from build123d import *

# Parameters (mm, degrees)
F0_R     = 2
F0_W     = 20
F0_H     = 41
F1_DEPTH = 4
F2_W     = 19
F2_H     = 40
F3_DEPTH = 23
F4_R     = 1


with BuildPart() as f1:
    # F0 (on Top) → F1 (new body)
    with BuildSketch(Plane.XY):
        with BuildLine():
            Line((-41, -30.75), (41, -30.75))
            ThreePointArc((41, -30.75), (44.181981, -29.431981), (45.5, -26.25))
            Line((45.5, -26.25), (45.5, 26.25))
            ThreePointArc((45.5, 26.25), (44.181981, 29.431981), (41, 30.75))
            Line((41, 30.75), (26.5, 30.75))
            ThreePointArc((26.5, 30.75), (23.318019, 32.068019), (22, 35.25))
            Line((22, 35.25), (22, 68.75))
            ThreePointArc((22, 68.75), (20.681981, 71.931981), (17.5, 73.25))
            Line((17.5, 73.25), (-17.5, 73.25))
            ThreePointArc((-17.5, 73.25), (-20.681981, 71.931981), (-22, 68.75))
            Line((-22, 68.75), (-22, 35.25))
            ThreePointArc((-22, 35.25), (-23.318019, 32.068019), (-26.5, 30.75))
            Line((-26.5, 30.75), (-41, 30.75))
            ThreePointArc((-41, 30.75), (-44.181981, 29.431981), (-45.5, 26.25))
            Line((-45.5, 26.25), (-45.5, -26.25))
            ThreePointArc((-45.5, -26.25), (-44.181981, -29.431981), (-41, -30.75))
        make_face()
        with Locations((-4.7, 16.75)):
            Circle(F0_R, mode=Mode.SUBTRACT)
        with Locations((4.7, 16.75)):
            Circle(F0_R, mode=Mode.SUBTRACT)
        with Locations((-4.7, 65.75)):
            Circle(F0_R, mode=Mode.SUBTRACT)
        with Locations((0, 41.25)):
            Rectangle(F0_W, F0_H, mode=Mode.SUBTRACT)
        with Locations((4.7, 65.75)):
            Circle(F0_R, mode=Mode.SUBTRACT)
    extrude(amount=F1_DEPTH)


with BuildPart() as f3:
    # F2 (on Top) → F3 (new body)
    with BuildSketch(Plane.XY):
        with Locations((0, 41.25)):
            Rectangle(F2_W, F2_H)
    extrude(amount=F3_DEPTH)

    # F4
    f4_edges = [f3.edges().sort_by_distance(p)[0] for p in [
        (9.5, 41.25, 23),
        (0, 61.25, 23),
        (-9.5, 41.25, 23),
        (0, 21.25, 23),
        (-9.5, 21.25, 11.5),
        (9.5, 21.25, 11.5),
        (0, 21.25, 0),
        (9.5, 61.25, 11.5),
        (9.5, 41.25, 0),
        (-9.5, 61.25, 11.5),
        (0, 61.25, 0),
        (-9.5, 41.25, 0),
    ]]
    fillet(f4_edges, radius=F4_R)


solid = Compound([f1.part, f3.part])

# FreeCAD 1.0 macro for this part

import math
import FreeCAD as App
import Part
import Sketcher
Q = App.Units.Quantity


def add_polygon(sketch, points):
    """Adds a closed chain of lines whose ends are joined by coincident constraints."""
    first, n = sketch.GeometryCount, len(points)
    for a, b in zip(points, points[1:] + points[:1]):
        sketch.addGeometry(Part.LineSegment(App.Vector(*a, 0), App.Vector(*b, 0)), False)
    for i in range(n):
        sketch.addConstraint(Sketcher.Constraint("Coincident", first + i, 2, first + (i + 1) % n, 1))

doc = App.newDocument("Part")
body = doc.addObject("PartDesign::Body", "Body")

sketch1 = doc.addObject("Sketcher::SketchObject", "Sketch")
body.addObject(sketch1)
sketch1.AttachmentSupport = (doc.XY_Plane, [""])
sketch1.MapMode = "FlatFace"
sketch1.addGeometry(Part.LineSegment(App.Vector(-41, -30.8, 0), App.Vector(41, -30.8, 0)), False)
sketch1.addGeometry(Part.ArcOfCircle(Part.Circle(App.Vector(41, -26.3, 0), App.Vector(0, 0, 1), 4.5), math.radians(-90), math.radians(0)), False)
sketch1.addGeometry(Part.LineSegment(App.Vector(45.5, -26.2, 0), App.Vector(45.5, 26.2, 0)), False)
sketch1.addGeometry(Part.ArcOfCircle(Part.Circle(App.Vector(41, 26.3, 0), App.Vector(0, 0, 1), 4.5), math.radians(0), math.radians(90)), False)
sketch1.addGeometry(Part.LineSegment(App.Vector(41, 30.8, 0), App.Vector(26.5, 30.8, 0)), False)
sketch1.addGeometry(Part.ArcOfCircle(Part.Circle(App.Vector(26.5, 35.2, 0), App.Vector(0, 0, 1), 4.5), math.radians(180), math.radians(270)), False)
sketch1.addGeometry(Part.LineSegment(App.Vector(22, 35.2, 0), App.Vector(22, 68.8, 0)), False)
sketch1.addGeometry(Part.ArcOfCircle(Part.Circle(App.Vector(17.5, 68.8, 0), App.Vector(0, 0, 1), 4.5), math.radians(0), math.radians(90)), False)
sketch1.addGeometry(Part.LineSegment(App.Vector(17.5, 73.2, 0), App.Vector(-17.5, 73.2, 0)), False)
sketch1.addGeometry(Part.ArcOfCircle(Part.Circle(App.Vector(-17.5, 68.8, 0), App.Vector(0, 0, 1), 4.5), math.radians(90), math.radians(180)), False)
sketch1.addGeometry(Part.LineSegment(App.Vector(-22, 68.8, 0), App.Vector(-22, 35.2, 0)), False)
sketch1.addGeometry(Part.ArcOfCircle(Part.Circle(App.Vector(-26.5, 35.2, 0), App.Vector(0, 0, 1), 4.5), math.radians(-90), math.radians(0)), False)
sketch1.addGeometry(Part.LineSegment(App.Vector(-26.5, 30.8, 0), App.Vector(-41, 30.8, 0)), False)
sketch1.addGeometry(Part.ArcOfCircle(Part.Circle(App.Vector(-41, 26.3, 0), App.Vector(0, 0, 1), 4.5), math.radians(90), math.radians(180)), False)
sketch1.addGeometry(Part.LineSegment(App.Vector(-45.5, 26.2, 0), App.Vector(-45.5, -26.2, 0)), False)
sketch1.addGeometry(Part.ArcOfCircle(Part.Circle(App.Vector(-41, -26.3, 0), App.Vector(0, 0, 1), 4.5), math.radians(180), math.radians(270)), False)
sketch1.addGeometry(Part.Circle(App.Vector(-4.7, 16.8, 0), App.Vector(0, 0, 1), 2), False)
sketch1.addGeometry(Part.Circle(App.Vector(4.7, 16.8, 0), App.Vector(0, 0, 1), 2), False)
sketch1.addGeometry(Part.Circle(App.Vector(-4.7, 65.8, 0), App.Vector(0, 0, 1), 2), False)
add_polygon(sketch1, [(10, 20.8), (-10, 20.8), (-10, 61.8), (10, 61.8)])
sketch1.addGeometry(Part.Circle(App.Vector(4.7, 65.8, 0), App.Vector(0, 0, 1), 2), False)
sketch1.addConstraint(Sketcher.Constraint("Tangent", 0, 2, 1, 1))
sketch1.addConstraint(Sketcher.Constraint("Tangent", 1, 2, 2, 1))
sketch1.addConstraint(Sketcher.Constraint("Tangent", 2, 2, 3, 1))
sketch1.addConstraint(Sketcher.Constraint("Tangent", 3, 2, 4, 1))
sketch1.addConstraint(Sketcher.Constraint("Tangent", 4, 2, 5, 2))
sketch1.addConstraint(Sketcher.Constraint("Tangent", 5, 1, 6, 1))
sketch1.addConstraint(Sketcher.Constraint("Tangent", 6, 2, 7, 1))
sketch1.addConstraint(Sketcher.Constraint("Tangent", 7, 2, 8, 1))
sketch1.addConstraint(Sketcher.Constraint("Tangent", 8, 2, 9, 1))
sketch1.addConstraint(Sketcher.Constraint("Tangent", 9, 2, 10, 1))
sketch1.addConstraint(Sketcher.Constraint("Tangent", 10, 2, 11, 2))
sketch1.addConstraint(Sketcher.Constraint("Tangent", 11, 1, 12, 1))
sketch1.addConstraint(Sketcher.Constraint("Tangent", 12, 2, 13, 1))
sketch1.addConstraint(Sketcher.Constraint("Tangent", 13, 2, 14, 1))
sketch1.addConstraint(Sketcher.Constraint("Tangent", 14, 2, 15, 1))
sketch1.addConstraint(Sketcher.Constraint("Tangent", 15, 2, 0, 1))
sketch1.addConstraint(Sketcher.Constraint("Horizontal", 0))
sketch1.addConstraint(Sketcher.Constraint("Vertical", 2))
sketch1.addConstraint(Sketcher.Constraint("Horizontal", 4))
sketch1.addConstraint(Sketcher.Constraint("Vertical", 6))
sketch1.addConstraint(Sketcher.Constraint("Horizontal", 8))
sketch1.addConstraint(Sketcher.Constraint("Vertical", 10))
sketch1.addConstraint(Sketcher.Constraint("Horizontal", 12))
sketch1.addConstraint(Sketcher.Constraint("Vertical", 14))
sketch1.addConstraint(Sketcher.Constraint("Horizontal", 19))
sketch1.addConstraint(Sketcher.Constraint("Vertical", 20))
sketch1.addConstraint(Sketcher.Constraint("Horizontal", 21))
sketch1.addConstraint(Sketcher.Constraint("Vertical", 22))
sketch1.addConstraint(Sketcher.Constraint("Equal", 1, 3))
sketch1.addConstraint(Sketcher.Constraint("Equal", 3, 5))
sketch1.addConstraint(Sketcher.Constraint("Equal", 5, 7))
sketch1.addConstraint(Sketcher.Constraint("Equal", 7, 9))
sketch1.addConstraint(Sketcher.Constraint("Equal", 9, 11))
sketch1.addConstraint(Sketcher.Constraint("Equal", 11, 13))
sketch1.addConstraint(Sketcher.Constraint("Equal", 13, 15))
sketch1.addConstraint(Sketcher.Constraint("Equal", 16, 17))
sketch1.addConstraint(Sketcher.Constraint("Equal", 17, 18))
sketch1.addConstraint(Sketcher.Constraint("Equal", 18, 23))
sketch1.addConstraint(Sketcher.Constraint("Symmetric", 1, 3, 13, 3, -1, 1))
sketch1.addConstraint(Sketcher.Constraint("Symmetric", 5, 3, 11, 3, -2))
sketch1.addConstraint(Sketcher.Constraint("Symmetric", 16, 3, 17, 3, -2))
sketch1.addConstraint(Sketcher.Constraint("Symmetric", 18, 3, 23, 3, -2))
sketch1.addConstraint(Sketcher.Constraint("Vertical", 16, 3, 18, 3))
sketch1.addConstraint(Sketcher.Constraint("Diameter", 16, Q("4 mm")))
sketch1.addConstraint(Sketcher.Constraint("Radius", 1, Q("4.499998 mm")))
sketch1.addConstraint(Sketcher.Constraint("DistanceX", 0, 1, 0, 2, Q("82 mm")))
sketch1.addConstraint(Sketcher.Constraint("DistanceX", 8, 2, 8, 1, Q("35 mm")))
sketch1.addConstraint(Sketcher.Constraint("DistanceX", 19, 2, 19, 1, Q("20 mm")))
sketch1.addConstraint(Sketcher.Constraint("DistanceY", 20, 1, 20, 2, Q("41 mm")))
sketch1.addConstraint(Sketcher.Constraint("DistanceY", 2, 1, 2, 2, Q("52.5 mm")))
sketch1.addConstraint(Sketcher.Constraint("DistanceY", 6, 1, 6, 2, Q("33.5 mm")))
sketch1.addConstraint(Sketcher.Constraint("DistanceX", 19, 2, -1, 1, Q("10 mm")))
sketch1.addConstraint(Sketcher.Constraint("DistanceY", 16, 3, 9, 3, Q("52.000002 mm")))
sketch1.addConstraint(Sketcher.Constraint("DistanceY", 18, 3, 9, 3, Q("3.000002 mm")))
sketch1.addConstraint(Sketcher.Constraint("DistanceY", 16, 3, 19, 2, Q("4 mm")))
sketch1.addConstraint(Sketcher.Constraint("DistanceX", 16, 3, -1, 1, Q("4.7 mm")))
pad1 = doc.addObject("PartDesign::Pad", "Pad")
body.addObject(pad1)
pad1.Profile = sketch1
pad1.Length = 4
body2 = doc.addObject("PartDesign::Body", "Body001")

sketch2 = doc.addObject("Sketcher::SketchObject", "Sketch001")
body2.addObject(sketch2)
sketch2.AttachmentSupport = (doc.getObject("XY_Plane001"), [""])
sketch2.MapMode = "FlatFace"
add_polygon(sketch2, [(-10, 61), (-10, 21), (10, 21), (10, 61)])
sketch2.addConstraint(Sketcher.Constraint("Vertical", 0))
sketch2.addConstraint(Sketcher.Constraint("Horizontal", 1))
sketch2.addConstraint(Sketcher.Constraint("Vertical", 2))
sketch2.addConstraint(Sketcher.Constraint("Horizontal", 3))
sketch2.addConstraint(Sketcher.Constraint("DistanceX", 1, 1, 1, 2, Q("19 mm")))
sketch2.addConstraint(Sketcher.Constraint("DistanceY", 0, 2, 0, 1, Q("40 mm")))
sketch2.addConstraint(Sketcher.Constraint("DistanceX", 0, 2, -1, 1, Q("9.5 mm")))
sketch2.addConstraint(Sketcher.Constraint("DistanceY", -1, 1, 0, 2, Q("21.25 mm")))
pad2 = doc.addObject("PartDesign::Pad", "Pad001")
body2.addObject(pad2)
pad2.Profile = sketch2
pad2.Length = 23
doc.recompute()

fillet = doc.addObject("PartDesign::Fillet", "Fillet")
body2.addObject(fillet)
fillet.Base = (pad2, ["Edge1"])
fillet.UseAllEdges = True
fillet.Radius = 1

doc.recompute()
